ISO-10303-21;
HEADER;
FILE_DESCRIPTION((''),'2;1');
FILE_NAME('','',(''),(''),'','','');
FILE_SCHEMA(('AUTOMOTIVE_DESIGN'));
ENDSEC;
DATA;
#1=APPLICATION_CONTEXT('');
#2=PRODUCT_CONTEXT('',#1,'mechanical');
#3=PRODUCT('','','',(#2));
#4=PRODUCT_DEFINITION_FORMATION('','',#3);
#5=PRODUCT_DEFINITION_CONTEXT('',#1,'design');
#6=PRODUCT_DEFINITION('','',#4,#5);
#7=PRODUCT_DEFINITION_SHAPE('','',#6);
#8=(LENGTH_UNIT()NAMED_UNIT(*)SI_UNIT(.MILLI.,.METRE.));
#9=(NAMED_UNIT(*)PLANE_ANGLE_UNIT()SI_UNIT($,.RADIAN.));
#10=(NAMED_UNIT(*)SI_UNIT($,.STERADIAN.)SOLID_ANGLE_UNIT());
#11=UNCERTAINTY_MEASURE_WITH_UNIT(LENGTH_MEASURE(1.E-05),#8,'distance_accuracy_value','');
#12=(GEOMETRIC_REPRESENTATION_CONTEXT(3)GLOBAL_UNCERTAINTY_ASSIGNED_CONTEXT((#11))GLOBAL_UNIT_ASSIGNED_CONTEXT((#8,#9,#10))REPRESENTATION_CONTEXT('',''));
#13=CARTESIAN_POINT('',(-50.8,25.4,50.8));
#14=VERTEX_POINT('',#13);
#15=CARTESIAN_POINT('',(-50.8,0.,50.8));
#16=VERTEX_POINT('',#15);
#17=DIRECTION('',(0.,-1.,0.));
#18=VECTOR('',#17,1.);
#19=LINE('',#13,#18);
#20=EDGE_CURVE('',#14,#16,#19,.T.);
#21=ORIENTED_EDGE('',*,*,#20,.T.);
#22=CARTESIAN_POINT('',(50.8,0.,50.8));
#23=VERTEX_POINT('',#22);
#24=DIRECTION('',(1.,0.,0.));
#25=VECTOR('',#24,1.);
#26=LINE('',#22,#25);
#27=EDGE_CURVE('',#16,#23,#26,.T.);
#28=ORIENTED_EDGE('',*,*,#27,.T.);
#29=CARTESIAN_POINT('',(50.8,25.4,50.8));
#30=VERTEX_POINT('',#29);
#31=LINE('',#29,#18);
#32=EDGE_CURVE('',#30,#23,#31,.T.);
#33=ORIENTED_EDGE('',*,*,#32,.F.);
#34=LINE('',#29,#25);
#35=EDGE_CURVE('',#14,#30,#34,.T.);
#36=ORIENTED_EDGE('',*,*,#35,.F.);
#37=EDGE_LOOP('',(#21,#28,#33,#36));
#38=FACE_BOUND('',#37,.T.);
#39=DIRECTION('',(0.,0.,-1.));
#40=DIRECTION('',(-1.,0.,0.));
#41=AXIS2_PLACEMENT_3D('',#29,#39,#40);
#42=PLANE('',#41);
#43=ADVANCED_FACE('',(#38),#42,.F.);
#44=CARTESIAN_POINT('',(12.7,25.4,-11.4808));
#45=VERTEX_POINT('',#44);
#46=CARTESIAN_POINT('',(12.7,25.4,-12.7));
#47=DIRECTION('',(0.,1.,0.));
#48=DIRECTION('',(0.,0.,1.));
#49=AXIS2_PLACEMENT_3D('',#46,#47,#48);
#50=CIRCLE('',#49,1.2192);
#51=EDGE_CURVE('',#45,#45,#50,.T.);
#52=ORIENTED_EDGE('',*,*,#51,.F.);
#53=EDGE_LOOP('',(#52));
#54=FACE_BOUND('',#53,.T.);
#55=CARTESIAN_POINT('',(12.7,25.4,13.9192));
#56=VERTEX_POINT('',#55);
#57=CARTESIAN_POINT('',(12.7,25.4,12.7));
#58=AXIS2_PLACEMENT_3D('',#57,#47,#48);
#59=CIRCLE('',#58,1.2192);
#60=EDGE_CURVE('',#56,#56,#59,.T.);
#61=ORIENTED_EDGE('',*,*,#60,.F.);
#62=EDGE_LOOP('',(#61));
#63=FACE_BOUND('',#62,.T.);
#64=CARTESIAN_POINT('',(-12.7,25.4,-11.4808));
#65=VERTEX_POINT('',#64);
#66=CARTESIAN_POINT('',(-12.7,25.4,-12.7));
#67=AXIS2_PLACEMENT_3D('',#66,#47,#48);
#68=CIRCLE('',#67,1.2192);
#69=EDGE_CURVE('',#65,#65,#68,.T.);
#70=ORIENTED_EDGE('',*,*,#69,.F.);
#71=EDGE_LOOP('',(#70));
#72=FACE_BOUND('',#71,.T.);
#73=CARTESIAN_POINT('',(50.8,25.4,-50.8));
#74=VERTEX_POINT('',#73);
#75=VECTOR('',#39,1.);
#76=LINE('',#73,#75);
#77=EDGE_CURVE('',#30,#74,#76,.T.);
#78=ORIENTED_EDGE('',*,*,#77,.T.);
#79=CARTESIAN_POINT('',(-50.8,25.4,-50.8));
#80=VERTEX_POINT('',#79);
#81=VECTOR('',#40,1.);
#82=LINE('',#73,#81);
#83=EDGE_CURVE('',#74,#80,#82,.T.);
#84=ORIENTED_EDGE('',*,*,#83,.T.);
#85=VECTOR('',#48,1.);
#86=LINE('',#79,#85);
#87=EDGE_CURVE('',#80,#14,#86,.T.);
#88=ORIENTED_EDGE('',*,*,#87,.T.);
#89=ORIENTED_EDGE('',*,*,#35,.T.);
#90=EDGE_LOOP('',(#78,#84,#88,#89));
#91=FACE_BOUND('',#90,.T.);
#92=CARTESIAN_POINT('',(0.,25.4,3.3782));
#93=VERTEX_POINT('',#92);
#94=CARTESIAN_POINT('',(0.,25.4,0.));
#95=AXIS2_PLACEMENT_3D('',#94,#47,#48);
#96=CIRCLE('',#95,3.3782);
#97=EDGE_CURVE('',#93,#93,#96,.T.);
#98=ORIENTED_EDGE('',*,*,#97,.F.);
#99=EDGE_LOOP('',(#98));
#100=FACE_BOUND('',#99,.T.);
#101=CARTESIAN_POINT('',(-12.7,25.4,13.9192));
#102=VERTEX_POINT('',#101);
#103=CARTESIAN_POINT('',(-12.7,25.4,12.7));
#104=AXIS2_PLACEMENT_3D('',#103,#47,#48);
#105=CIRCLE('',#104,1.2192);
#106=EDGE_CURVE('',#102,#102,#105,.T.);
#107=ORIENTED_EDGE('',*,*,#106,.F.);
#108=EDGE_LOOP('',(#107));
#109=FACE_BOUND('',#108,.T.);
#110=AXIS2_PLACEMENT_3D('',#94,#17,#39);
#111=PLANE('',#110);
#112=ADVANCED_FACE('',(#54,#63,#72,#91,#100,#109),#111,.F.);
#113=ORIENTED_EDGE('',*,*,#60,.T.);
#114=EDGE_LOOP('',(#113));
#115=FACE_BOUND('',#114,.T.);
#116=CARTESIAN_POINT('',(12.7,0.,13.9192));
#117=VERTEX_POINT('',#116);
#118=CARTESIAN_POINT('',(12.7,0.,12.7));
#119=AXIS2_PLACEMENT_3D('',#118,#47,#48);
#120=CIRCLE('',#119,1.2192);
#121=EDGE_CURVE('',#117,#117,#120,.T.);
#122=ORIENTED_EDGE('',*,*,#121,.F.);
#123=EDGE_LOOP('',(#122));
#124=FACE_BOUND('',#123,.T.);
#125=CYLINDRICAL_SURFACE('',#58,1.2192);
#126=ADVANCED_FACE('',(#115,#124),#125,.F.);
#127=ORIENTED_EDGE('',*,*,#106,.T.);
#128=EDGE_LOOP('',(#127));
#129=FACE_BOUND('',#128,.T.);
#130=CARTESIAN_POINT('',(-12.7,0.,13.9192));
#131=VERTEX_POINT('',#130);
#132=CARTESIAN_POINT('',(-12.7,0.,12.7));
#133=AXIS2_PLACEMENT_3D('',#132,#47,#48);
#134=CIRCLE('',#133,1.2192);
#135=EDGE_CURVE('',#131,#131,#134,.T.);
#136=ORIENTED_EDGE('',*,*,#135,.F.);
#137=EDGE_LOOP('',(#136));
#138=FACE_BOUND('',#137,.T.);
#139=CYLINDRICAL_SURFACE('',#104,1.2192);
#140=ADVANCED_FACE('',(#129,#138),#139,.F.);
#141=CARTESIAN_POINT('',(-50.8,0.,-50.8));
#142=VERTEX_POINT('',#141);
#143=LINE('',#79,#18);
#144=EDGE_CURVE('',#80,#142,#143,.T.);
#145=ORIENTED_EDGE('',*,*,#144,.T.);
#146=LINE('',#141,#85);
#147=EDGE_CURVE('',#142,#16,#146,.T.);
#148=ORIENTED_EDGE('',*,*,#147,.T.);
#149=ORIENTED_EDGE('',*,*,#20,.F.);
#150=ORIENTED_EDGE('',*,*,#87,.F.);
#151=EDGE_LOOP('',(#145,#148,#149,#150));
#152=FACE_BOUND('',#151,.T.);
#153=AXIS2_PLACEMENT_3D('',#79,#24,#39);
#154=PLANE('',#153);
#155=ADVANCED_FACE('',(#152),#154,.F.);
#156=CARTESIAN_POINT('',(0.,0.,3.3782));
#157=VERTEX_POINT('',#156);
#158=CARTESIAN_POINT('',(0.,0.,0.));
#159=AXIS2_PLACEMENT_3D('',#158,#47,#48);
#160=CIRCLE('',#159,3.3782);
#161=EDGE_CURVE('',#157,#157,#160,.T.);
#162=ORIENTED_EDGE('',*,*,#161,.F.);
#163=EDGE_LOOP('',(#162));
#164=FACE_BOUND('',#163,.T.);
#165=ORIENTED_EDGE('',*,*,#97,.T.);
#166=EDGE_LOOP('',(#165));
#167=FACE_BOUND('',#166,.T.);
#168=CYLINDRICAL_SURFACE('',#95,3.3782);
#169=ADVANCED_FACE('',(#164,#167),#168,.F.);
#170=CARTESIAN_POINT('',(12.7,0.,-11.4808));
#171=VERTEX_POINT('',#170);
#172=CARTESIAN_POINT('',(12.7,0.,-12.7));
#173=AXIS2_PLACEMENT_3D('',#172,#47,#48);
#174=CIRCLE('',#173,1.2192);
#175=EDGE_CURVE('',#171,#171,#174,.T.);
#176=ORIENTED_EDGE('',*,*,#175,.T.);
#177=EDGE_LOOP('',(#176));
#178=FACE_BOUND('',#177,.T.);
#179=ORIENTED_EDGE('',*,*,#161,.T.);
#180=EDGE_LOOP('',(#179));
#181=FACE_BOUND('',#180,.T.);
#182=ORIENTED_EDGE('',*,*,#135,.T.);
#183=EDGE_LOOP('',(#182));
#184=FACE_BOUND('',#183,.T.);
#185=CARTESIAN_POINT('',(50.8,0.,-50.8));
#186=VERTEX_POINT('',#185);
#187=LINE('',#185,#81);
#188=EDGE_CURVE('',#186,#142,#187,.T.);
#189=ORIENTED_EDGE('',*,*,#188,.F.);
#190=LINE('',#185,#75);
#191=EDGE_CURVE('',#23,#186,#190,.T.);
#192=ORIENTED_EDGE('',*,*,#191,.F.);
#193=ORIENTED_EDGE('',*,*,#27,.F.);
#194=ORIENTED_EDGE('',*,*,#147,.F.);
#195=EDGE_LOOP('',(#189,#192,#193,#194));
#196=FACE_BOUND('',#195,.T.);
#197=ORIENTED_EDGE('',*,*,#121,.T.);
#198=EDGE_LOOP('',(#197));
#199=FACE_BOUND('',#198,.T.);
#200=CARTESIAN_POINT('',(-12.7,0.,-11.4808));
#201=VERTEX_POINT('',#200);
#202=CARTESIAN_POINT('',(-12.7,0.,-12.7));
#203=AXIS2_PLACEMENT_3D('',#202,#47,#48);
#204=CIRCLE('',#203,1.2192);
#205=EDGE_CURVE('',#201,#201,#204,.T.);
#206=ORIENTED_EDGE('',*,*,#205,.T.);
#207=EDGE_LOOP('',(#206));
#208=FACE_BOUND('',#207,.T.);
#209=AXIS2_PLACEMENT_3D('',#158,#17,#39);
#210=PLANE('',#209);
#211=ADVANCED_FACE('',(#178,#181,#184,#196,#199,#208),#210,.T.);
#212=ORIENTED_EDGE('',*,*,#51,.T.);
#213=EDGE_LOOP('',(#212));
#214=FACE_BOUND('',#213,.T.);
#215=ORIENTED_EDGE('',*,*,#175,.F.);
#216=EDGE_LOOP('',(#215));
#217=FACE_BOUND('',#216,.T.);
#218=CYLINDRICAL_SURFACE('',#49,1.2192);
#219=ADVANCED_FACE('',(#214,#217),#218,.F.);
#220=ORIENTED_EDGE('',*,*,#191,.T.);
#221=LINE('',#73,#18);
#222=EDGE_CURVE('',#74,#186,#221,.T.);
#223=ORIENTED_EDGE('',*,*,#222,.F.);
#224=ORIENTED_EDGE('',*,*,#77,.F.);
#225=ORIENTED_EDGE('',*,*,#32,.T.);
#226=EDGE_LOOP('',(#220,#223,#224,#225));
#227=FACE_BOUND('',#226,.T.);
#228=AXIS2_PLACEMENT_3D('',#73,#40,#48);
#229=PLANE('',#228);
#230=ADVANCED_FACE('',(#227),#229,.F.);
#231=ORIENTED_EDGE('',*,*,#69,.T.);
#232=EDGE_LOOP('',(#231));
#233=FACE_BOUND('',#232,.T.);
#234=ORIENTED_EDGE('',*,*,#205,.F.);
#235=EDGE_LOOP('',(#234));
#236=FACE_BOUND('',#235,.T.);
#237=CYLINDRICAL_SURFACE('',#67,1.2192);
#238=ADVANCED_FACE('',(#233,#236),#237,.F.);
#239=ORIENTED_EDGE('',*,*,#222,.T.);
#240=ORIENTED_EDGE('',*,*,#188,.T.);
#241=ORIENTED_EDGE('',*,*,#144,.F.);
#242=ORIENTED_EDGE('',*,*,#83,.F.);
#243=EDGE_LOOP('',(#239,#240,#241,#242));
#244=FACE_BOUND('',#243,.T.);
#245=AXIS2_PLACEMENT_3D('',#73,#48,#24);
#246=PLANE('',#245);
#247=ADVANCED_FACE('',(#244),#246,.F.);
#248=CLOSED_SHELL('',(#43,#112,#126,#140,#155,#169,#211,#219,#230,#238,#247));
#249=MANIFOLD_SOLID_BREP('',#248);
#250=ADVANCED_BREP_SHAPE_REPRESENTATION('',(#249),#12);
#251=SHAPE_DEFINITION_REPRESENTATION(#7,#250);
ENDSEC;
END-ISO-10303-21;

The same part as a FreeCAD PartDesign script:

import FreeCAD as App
import Part
import Sketcher
from FreeCAD import Vector
Q = App.Units.Quantity

doc = App.newDocument("Part")
body = doc.addObject("PartDesign::Body", "Body")

sketch1 = body.newObject("Sketcher::SketchObject", "Sketch")
sketch1.AttachmentSupport = (doc.getObject("XZ_Plane"), [""])
sketch1.MapMode = "FlatFace"
sketch1.addGeometry([
    Part.LineSegment(Vector(-50.8, -50.8, 0), Vector(-50.8, 50.8, 0)),
    Part.LineSegment(Vector(-50.8, 50.8, 0), Vector(50.8, 50.8, 0)),
    Part.LineSegment(Vector(50.8, 50.8, 0), Vector(50.8, -50.8, 0)),
    Part.LineSegment(Vector(50.8, -50.8, 0), Vector(-50.8, -50.8, 0)),
], False)
sketch1.addConstraint([
    Sketcher.Constraint("Coincident", 0, 2, 1, 1),
    Sketcher.Constraint("Coincident", 1, 2, 2, 1),
    Sketcher.Constraint("Coincident", 2, 2, 3, 1),
    Sketcher.Constraint("Coincident", 3, 2, 0, 1),
    Sketcher.Constraint("Vertical", 0),
    Sketcher.Constraint("Horizontal", 1),
    Sketcher.Constraint("Vertical", 2),
    Sketcher.Constraint("Horizontal", 3),
    Sketcher.Constraint("Symmetric", 0, 2, 2, 2, -1, 1),
    Sketcher.Constraint("Equal", 3, 0),
    Sketcher.Constraint("DistanceX", 1, 1, 1, 2, Q("4 in")),
])
pad1 = body.newObject("PartDesign::Pad", "Pad")
pad1.Profile = sketch1
pad1.Length = Q("1 in")
pad1.Reversed = True

sketch2 = body.newObject("Sketcher::SketchObject", "Sketch001")
sketch2.AttachmentSupport = (doc.getObject("XZ_Plane"), [""])
sketch2.MapMode = "FlatFace"
sketch2.AttachmentOffset = App.Placement(Vector(0, 0, -1 * 25.4), App.Rotation())
sketch2.addGeometry(Part.Circle(Vector(0, 0, 0), Vector(0, 0, 1), 3.3782), False)
sketch2.addConstraint([
    Sketcher.Constraint("Coincident", 0, 3, -1, 1),
    Sketcher.Constraint("Diameter", 0, Q("0.266 in")),
])
doc.recompute()
hole = body.newObject("PartDesign::Hole", "Hole")
hole.Profile = sketch2
hole.ThreadType = "None"
hole.Diameter = Q("0.266 in")
hole.DepthType = "ThroughAll"
hole.Reversed = True

sketch3 = body.newObject("Sketcher::SketchObject", "Sketch002")
sketch3.AttachmentSupport = (doc.getObject("XZ_Plane"), [""])
sketch3.MapMode = "FlatFace"
sketch3.AttachmentOffset = App.Placement(Vector(0, 0, -1 * 25.4), App.Rotation())
sketch3.addGeometry([
    Part.Circle(Vector(-12.7, -12.7, 0), Vector(0, 0, 1), 1.2192),
    Part.Circle(Vector(0, 0, 0), Vector(0, 0, 1), 1.2192),
], False)
sketch3.addConstraint([
    Sketcher.Constraint("Coincident", 1, 3, -1, 1),
    Sketcher.Constraint("Equal", 0, 1),
    Sketcher.Constraint("Diameter", 0, Q("0.096 in")),
    Sketcher.Constraint("DistanceX", 0, 3, -1, 1, Q("0.5 in")),
    Sketcher.Constraint("DistanceY", 0, 3, -1, 1, Q("0.5 in")),
])
doc.recompute()
hole2 = body.newObject("PartDesign::Hole", "Hole001")
hole2.Profile = sketch3
hole2.ThreadType = "None"
hole2.Diameter = Q("0.096 in")
hole2.DepthType = "ThroughAll"
hole2.Reversed = True

sketch4 = body.newObject("Sketcher::SketchObject", "Sketch003")
sketch4.AttachmentSupport = (doc.getObject("XZ_Plane"), [""])
sketch4.MapMode = "FlatFace"
sketch4.AttachmentOffset = App.Placement(Vector(0, 0, -1 * 25.4), App.Rotation())
sketch4.addGeometry([
    Part.Circle(Vector(12.7, -12.7, 0), Vector(0, 0, 1), 1.2192),
    Part.Circle(Vector(-12.7, 12.7, 0), Vector(0, 0, 1), 1.2192),
    Part.Circle(Vector(12.7, 12.7, 0), Vector(0, 0, 1), 1.2192),
], False)
sketch4.addConstraint([
    Sketcher.Constraint("Equal", 0, 1),
    Sketcher.Constraint("Equal", 1, 2),
    Sketcher.Constraint("Symmetric", 0, 3, 1, 3, -1, 1),
    Sketcher.Constraint("Symmetric", 1, 3, 2, 3, -2),
    Sketcher.Constraint("Diameter", 0, Q("0.096 in")),
    Sketcher.Constraint("DistanceX", 1, 3, 0, 3, Q("1 in")),
    Sketcher.Constraint("DistanceY", 0, 3, 1, 3, Q("1 in")),
])
doc.recompute()
hole3 = body.newObject("PartDesign::Hole", "Hole002")
hole3.Profile = sketch4
hole3.ThreadType = "None"
hole3.Diameter = Q("0.096 in")
hole3.DepthType = "ThroughAll"
hole3.Reversed = True

doc.recompute()
